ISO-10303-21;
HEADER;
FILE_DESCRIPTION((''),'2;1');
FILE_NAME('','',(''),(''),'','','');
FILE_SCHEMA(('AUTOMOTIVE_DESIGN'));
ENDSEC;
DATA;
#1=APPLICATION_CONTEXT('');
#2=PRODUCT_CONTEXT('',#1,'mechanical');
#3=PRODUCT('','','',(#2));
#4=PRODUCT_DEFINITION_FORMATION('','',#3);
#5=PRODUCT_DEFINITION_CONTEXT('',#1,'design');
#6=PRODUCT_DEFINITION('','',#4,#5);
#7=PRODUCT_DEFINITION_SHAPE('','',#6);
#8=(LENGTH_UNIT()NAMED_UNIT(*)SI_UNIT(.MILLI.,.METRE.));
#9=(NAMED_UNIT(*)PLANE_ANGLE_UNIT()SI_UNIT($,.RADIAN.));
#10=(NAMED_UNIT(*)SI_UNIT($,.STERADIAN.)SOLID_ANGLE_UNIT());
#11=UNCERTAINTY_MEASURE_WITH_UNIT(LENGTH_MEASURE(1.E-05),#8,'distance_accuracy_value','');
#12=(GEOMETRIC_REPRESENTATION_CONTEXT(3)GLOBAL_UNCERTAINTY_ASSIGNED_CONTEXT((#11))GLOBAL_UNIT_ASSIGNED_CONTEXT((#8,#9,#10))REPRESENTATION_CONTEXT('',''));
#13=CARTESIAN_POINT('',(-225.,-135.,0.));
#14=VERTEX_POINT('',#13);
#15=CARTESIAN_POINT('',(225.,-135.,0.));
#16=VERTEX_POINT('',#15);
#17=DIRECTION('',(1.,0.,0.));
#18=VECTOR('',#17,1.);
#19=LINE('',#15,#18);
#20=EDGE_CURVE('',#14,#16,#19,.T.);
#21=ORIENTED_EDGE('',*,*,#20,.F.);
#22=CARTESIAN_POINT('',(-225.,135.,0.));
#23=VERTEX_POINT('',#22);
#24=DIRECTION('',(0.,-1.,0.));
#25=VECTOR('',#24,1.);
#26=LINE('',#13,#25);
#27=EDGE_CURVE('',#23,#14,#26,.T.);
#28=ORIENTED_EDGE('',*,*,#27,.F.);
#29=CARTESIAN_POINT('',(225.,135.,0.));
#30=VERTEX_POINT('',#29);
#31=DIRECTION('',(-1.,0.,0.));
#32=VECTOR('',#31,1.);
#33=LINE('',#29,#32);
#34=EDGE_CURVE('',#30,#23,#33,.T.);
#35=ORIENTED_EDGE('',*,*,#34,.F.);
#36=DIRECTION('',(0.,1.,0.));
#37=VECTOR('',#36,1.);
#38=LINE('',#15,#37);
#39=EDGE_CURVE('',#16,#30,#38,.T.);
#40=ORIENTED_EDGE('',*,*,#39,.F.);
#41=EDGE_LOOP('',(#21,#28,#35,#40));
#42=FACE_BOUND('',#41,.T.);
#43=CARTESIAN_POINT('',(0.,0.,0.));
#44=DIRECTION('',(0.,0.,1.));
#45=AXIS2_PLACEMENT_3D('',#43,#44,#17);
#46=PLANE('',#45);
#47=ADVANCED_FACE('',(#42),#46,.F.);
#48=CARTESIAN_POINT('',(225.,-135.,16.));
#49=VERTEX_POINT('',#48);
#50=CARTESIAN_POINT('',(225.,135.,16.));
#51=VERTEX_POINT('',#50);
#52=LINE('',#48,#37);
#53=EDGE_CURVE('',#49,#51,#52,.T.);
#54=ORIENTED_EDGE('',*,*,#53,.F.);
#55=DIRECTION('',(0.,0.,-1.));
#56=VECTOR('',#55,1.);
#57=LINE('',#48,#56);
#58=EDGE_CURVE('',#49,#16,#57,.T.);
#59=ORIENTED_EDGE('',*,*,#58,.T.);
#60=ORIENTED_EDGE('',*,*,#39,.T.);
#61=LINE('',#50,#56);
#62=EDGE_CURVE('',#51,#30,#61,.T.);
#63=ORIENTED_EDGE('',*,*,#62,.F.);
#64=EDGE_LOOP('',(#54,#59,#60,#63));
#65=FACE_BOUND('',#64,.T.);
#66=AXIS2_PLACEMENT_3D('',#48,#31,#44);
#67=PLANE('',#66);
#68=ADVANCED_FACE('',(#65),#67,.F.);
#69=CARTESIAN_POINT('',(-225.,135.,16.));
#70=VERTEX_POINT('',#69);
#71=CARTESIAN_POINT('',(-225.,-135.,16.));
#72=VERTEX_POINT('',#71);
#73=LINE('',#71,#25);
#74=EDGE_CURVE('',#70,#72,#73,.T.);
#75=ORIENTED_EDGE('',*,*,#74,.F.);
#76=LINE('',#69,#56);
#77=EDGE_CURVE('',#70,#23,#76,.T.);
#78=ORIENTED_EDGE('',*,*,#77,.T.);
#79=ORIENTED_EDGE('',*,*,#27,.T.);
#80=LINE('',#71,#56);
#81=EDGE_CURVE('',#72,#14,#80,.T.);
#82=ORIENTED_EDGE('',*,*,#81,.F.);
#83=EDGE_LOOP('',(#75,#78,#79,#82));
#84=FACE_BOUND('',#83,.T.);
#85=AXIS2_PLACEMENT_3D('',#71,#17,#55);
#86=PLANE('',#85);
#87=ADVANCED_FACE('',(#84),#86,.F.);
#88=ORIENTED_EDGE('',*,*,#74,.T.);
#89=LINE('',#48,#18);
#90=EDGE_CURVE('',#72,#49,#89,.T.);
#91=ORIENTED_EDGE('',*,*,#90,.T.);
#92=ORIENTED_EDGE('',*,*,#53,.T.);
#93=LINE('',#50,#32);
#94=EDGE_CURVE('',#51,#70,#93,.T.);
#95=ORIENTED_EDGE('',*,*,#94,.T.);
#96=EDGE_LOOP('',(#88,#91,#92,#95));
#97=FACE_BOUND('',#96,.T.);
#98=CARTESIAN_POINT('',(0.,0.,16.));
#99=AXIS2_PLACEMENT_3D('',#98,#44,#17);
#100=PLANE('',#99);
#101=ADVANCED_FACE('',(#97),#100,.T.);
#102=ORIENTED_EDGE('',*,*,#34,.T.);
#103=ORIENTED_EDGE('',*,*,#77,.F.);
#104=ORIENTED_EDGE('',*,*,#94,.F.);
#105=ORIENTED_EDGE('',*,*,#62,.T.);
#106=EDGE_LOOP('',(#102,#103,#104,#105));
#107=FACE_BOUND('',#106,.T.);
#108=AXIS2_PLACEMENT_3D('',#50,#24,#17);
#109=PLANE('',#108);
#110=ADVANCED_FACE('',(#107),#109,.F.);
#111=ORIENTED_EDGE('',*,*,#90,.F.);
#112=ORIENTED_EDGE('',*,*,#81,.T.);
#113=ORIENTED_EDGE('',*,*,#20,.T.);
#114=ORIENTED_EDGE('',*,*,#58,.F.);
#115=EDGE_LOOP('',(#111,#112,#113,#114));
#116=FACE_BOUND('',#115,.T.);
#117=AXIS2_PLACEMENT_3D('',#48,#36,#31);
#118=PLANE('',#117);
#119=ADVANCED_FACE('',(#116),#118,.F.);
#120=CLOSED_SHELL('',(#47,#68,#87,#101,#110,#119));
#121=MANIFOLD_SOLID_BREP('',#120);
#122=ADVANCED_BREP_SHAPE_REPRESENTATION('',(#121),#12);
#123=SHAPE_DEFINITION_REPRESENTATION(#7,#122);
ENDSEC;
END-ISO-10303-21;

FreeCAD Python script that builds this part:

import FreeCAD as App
import Part
import Sketcher
from FreeCAD import Vector
Q = App.Units.Quantity


def add_polygon(sketch, points):
    """Adds a closed chain of lines whose ends are joined by coincident constraints."""
    first, n = sketch.GeometryCount, len(points)
    for a, b in zip(points, points[1:] + points[:1]):
        sketch.addGeometry(Part.LineSegment(App.Vector(*a, 0), App.Vector(*b, 0)), False)
    for i in range(n):
        sketch.addConstraint(Sketcher.Constraint("Coincident", first + i, 2, first + (i + 1) % n, 1))

doc = App.newDocument("Part")
params = doc.addObject("Spreadsheet::Sheet", "Params")
for row, (alias, value) in enumerate([
    ("sketch1_width", "450 mm"),
    ("sketch1_height", "270 mm"),
    ("pad1_length", "16 mm"),
], start=1):
    params.set(f"A{row}", alias)
    params.set(f"B{row}", "=" + value)
    params.setAlias(f"B{row}", alias)

body = doc.addObject("PartDesign::Body", "Body")

# Sketch on XY plane
sketch1 = body.newObject("Sketcher::SketchObject", "Sketch")
sketch1.AttachmentSupport = (doc.getObject("XY_Plane"), [""])
sketch1.MapMode = "FlatFace"
add_polygon(sketch1, [(-225, 135), (-225, -135), (225, -135), (225, 135)])  # lines 0-3
sketch1.addConstraint(Sketcher.Constraint("Vertical", 0))
sketch1.addConstraint(Sketcher.Constraint("Horizontal", 1))
sketch1.addConstraint(Sketcher.Constraint("Vertical", 2))
sketch1.addConstraint(Sketcher.Constraint("Horizontal", 3))
sketch1.addConstraint(Sketcher.Constraint("Symmetric", 0, 2, 2, 2, -1, 1))
sketch1.addConstraint(Sketcher.Constraint("DistanceX", 1, 1, 1, 2, Q("450 mm")))
sketch1.addConstraint(Sketcher.Constraint("DistanceY", 0, 2, 0, 1, Q("270 mm")))
sketch1.setExpression("Constraints[9]", "Params.sketch1_width")
sketch1.setExpression("Constraints[10]", "Params.sketch1_height")
pad1 = body.newObject("PartDesign::Pad", "Pad")
pad1.Profile = sketch1
pad1.setExpression("Length", "Params.pad1_length")

doc.recompute()
